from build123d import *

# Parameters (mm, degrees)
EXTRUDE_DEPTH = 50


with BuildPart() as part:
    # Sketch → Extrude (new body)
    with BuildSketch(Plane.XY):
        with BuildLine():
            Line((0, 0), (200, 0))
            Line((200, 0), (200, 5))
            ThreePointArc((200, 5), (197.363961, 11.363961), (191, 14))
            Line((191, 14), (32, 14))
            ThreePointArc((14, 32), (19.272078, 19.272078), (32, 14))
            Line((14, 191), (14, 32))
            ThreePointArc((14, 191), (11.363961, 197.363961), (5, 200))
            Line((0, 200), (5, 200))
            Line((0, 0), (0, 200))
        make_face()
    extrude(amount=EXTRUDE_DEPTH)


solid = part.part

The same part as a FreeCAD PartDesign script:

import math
import FreeCAD as App
import Part
import Sketcher

V = App.Vector

doc = App.newDocument("Part")
body = doc.addObject("PartDesign::Body", "Body")

# Sketch on XY plane
sketch1 = body.newObject("Sketcher::SketchObject", "Sketch")
sketch1.AttachmentSupport = (doc.getObject("XY_Plane"), [""])
sketch1.MapMode = "FlatFace"
sketch1.addGeometry([
    Part.LineSegment(V(0, 0, 0), V(200, 0, 0)),  # 0
    Part.LineSegment(V(200, 0, 0), V(200, 5, 0)),  # 1
    Part.ArcOfCircle(Part.Circle(V(191, 5, 0), V(0, 0, 1), 9), math.radians(0), math.radians(90)),  # 2
    Part.LineSegment(V(191, 14, 0), V(32, 14, 0)),  # 3
    Part.ArcOfCircle(Part.Circle(V(32, 32, 0), V(0, 0, 1), 18), math.radians(-180), math.radians(-90)),  # 4
    Part.LineSegment(V(14, 32, 0), V(14, 191, 0)),  # 5
    Part.ArcOfCircle(Part.Circle(V(5, 191, 0), V(0, 0, 1), 9), math.radians(0), math.radians(90)),  # 6
    Part.LineSegment(V(5, 200, 0), V(0, 200, 0)),  # 7
    Part.LineSegment(V(0, 200, 0), V(0, 0, 0)),  # 8
], False)
sketch1.addConstraint([
    Sketcher.Constraint("Coincident", 0, 2, 1, 1),
    Sketcher.Constraint("Tangent", 1, 2, 2, 1),
    Sketcher.Constraint("Tangent", 2, 2, 3, 1),
    Sketcher.Constraint("Tangent", 3, 2, 4, 2),
    Sketcher.Constraint("Tangent", 4, 1, 5, 1),
    Sketcher.Constraint("Tangent", 5, 2, 6, 1),
    Sketcher.Constraint("Tangent", 6, 2, 7, 1),
    Sketcher.Constraint("Coincident", 7, 2, 8, 1),
    Sketcher.Constraint("Coincident", 8, 2, 0, 1),
    Sketcher.Constraint("Horizontal", 0),
    Sketcher.Constraint("Vertical", 1),
    Sketcher.Constraint("Horizontal", 3),
    Sketcher.Constraint("Vertical", 5),
    Sketcher.Constraint("Horizontal", 7),
    Sketcher.Constraint("Vertical", 8),
    Sketcher.Constraint("Coincident", 8, 2, -1, 1),
    Sketcher.Constraint("Equal", 2, 6),
    Sketcher.Constraint("Equal", 7, 1),
    Sketcher.Constraint("Equal", 3, 5),
    Sketcher.Constraint("Radius", 2, 9.0),
    Sketcher.Constraint("Radius", 4, 18.0),
    Sketcher.Constraint("DistanceX", 0, 1, 0, 2, 200.0),
    Sketcher.Constraint("DistanceX", 3, 2, 3, 1, 159.0),
])
pad1 = body.newObject("PartDesign::Pad", "Pad")
pad1.Profile = sketch1
pad1.Length = 50

doc.recompute()
